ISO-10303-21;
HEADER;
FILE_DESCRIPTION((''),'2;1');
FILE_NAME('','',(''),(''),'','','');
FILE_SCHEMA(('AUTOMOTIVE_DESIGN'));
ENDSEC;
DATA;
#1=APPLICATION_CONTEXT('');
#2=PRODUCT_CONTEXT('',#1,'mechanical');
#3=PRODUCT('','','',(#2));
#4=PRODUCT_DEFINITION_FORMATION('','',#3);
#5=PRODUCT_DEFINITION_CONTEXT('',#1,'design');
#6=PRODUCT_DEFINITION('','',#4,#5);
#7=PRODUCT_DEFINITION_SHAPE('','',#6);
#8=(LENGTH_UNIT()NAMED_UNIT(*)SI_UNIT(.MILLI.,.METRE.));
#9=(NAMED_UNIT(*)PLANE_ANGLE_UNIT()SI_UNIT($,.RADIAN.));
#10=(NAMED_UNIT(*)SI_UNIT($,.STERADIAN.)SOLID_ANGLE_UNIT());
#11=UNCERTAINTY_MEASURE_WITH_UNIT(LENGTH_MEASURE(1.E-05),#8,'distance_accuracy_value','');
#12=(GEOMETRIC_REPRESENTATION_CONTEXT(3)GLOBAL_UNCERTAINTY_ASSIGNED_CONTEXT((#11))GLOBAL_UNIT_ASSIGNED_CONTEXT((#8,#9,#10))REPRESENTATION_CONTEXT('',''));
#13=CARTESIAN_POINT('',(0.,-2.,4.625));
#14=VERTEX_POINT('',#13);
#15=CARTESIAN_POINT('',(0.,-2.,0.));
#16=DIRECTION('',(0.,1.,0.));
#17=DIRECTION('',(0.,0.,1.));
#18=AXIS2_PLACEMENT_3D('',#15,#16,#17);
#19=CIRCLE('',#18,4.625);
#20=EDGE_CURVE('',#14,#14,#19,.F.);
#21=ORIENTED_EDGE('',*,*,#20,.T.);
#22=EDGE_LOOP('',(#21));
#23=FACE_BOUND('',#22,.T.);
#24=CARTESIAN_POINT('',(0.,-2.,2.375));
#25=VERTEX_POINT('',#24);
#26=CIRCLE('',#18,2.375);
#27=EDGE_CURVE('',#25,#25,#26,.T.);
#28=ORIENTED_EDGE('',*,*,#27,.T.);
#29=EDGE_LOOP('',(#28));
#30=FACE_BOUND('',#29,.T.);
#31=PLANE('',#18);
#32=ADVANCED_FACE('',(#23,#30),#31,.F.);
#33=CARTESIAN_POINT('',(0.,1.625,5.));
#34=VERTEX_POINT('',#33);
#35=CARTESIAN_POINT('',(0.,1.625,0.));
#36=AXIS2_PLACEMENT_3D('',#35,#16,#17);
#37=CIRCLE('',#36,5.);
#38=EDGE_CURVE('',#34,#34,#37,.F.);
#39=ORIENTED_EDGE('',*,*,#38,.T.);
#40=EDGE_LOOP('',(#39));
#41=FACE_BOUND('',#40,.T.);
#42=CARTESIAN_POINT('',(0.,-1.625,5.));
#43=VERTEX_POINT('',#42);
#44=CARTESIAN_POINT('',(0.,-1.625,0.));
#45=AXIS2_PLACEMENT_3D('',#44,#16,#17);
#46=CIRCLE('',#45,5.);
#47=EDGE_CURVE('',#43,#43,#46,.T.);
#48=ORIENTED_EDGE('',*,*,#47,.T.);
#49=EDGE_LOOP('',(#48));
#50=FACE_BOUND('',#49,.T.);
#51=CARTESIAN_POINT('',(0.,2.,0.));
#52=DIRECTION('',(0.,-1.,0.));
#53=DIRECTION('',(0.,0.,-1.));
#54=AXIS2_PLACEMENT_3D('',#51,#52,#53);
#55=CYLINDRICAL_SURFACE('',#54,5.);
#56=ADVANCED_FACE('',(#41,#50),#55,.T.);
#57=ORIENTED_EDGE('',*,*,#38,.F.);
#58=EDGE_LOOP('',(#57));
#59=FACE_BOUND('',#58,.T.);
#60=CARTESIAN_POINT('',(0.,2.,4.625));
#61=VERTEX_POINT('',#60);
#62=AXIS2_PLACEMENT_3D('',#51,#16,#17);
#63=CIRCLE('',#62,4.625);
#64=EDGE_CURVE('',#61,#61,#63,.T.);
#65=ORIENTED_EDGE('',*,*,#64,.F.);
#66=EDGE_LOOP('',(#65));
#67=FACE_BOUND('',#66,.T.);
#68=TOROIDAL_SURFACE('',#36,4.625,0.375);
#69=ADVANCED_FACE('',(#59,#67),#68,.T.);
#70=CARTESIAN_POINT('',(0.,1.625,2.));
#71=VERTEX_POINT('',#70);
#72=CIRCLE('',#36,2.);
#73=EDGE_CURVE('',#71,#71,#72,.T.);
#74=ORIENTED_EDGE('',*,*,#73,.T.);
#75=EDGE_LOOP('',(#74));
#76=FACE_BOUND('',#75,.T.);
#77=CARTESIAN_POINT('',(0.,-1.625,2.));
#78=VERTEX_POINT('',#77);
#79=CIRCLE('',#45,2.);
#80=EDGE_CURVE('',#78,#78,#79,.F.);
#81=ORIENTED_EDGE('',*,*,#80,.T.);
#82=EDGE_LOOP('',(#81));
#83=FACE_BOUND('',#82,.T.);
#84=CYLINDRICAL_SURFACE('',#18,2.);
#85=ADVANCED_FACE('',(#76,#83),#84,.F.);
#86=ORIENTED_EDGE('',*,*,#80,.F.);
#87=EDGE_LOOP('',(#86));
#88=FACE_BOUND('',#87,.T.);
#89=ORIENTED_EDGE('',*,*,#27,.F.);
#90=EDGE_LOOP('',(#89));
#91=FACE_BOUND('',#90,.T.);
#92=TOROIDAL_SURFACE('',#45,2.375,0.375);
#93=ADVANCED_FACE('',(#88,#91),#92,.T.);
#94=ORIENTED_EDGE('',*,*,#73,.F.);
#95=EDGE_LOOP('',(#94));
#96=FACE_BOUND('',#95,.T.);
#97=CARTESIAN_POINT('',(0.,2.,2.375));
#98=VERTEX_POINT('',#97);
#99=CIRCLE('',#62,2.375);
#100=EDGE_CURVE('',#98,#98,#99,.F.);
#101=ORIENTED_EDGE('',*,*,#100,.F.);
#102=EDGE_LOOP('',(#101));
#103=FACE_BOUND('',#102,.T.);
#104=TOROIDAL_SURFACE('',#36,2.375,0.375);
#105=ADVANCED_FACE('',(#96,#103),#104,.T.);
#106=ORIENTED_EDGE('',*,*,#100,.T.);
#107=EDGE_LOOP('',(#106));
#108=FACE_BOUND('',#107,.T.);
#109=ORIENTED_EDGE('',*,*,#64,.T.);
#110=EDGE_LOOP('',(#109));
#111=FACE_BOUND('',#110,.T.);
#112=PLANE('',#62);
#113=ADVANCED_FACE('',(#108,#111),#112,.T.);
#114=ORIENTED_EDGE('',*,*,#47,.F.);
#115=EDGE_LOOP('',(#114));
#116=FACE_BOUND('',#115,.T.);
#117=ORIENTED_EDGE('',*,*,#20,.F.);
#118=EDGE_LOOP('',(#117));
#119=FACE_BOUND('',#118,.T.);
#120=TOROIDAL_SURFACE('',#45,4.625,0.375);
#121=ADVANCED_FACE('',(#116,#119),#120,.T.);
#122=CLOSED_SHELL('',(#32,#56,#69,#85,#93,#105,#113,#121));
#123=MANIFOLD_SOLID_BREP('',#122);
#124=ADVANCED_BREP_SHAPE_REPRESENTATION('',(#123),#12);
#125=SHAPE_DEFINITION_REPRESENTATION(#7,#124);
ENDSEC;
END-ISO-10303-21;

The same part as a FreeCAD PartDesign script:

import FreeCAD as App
import Part
import Sketcher
Q = App.Units.Quantity


def edges_at(feature, points):
    """Names of the edges that pass closest to the given points."""
    edges = feature.Shape.Edges
    near = lambda p: min(range(len(edges)), key=lambda i: edges[i].distToShape(Part.Vertex(*p))[0])
    return sorted({f"Edge{near(p) + 1}" for p in points})

doc = App.newDocument("Part")
body = doc.addObject("PartDesign::Body", "Body")

# Sketch on XZ plane
sketch1 = doc.addObject("Sketcher::SketchObject", "Sketch")
body.addObject(sketch1)
sketch1.AttachmentSupport = (doc.XZ_Plane, [""])
sketch1.MapMode = "FlatFace"
sketch1.addGeometry(Part.Circle(App.Vector(0, 0, 0), App.Vector(0, 0, 1), 5), False)
sketch1.addConstraint(Sketcher.Constraint("Coincident", 0, 3, -1, 1))
sketch1.addConstraint(Sketcher.Constraint("Diameter", 0, Q("10 mm")))
pad1 = doc.addObject("PartDesign::Pad", "Pad")
body.addObject(pad1)
pad1.Profile = sketch1
pad1.Length = 4
pad1.Midplane = True

# Sketch on XZ plane
sketch2 = doc.addObject("Sketcher::SketchObject", "Sketch001")
body.addObject(sketch2)
sketch2.AttachmentSupport = (doc.XZ_Plane, [""])
sketch2.MapMode = "FlatFace"
sketch2.addGeometry(Part.Circle(App.Vector(0, 0, 0), App.Vector(0, 0, 1), 2), False)
sketch2.addConstraint(Sketcher.Constraint("Coincident", 0, 3, -1, 1))
sketch2.addConstraint(Sketcher.Constraint("Diameter", 0, Q("4 mm")))
pocket1 = doc.addObject("PartDesign::Pocket", "Pocket")
body.addObject(pocket1)
pocket1.Profile = sketch2
pocket1.Type = "ThroughAll"
pocket1.Midplane = True
doc.recompute()

fillet = doc.addObject("PartDesign::Fillet", "Fillet")
body.addObject(fillet)
fillet.Base = (pocket1, edges_at(pocket1, [
    (-5, -2, 0),
    (-5, 2, 0),
    (-2, -2, 0),
    (-2, 2, 0),
]))
fillet.Radius = 0.375

doc.recompute()
